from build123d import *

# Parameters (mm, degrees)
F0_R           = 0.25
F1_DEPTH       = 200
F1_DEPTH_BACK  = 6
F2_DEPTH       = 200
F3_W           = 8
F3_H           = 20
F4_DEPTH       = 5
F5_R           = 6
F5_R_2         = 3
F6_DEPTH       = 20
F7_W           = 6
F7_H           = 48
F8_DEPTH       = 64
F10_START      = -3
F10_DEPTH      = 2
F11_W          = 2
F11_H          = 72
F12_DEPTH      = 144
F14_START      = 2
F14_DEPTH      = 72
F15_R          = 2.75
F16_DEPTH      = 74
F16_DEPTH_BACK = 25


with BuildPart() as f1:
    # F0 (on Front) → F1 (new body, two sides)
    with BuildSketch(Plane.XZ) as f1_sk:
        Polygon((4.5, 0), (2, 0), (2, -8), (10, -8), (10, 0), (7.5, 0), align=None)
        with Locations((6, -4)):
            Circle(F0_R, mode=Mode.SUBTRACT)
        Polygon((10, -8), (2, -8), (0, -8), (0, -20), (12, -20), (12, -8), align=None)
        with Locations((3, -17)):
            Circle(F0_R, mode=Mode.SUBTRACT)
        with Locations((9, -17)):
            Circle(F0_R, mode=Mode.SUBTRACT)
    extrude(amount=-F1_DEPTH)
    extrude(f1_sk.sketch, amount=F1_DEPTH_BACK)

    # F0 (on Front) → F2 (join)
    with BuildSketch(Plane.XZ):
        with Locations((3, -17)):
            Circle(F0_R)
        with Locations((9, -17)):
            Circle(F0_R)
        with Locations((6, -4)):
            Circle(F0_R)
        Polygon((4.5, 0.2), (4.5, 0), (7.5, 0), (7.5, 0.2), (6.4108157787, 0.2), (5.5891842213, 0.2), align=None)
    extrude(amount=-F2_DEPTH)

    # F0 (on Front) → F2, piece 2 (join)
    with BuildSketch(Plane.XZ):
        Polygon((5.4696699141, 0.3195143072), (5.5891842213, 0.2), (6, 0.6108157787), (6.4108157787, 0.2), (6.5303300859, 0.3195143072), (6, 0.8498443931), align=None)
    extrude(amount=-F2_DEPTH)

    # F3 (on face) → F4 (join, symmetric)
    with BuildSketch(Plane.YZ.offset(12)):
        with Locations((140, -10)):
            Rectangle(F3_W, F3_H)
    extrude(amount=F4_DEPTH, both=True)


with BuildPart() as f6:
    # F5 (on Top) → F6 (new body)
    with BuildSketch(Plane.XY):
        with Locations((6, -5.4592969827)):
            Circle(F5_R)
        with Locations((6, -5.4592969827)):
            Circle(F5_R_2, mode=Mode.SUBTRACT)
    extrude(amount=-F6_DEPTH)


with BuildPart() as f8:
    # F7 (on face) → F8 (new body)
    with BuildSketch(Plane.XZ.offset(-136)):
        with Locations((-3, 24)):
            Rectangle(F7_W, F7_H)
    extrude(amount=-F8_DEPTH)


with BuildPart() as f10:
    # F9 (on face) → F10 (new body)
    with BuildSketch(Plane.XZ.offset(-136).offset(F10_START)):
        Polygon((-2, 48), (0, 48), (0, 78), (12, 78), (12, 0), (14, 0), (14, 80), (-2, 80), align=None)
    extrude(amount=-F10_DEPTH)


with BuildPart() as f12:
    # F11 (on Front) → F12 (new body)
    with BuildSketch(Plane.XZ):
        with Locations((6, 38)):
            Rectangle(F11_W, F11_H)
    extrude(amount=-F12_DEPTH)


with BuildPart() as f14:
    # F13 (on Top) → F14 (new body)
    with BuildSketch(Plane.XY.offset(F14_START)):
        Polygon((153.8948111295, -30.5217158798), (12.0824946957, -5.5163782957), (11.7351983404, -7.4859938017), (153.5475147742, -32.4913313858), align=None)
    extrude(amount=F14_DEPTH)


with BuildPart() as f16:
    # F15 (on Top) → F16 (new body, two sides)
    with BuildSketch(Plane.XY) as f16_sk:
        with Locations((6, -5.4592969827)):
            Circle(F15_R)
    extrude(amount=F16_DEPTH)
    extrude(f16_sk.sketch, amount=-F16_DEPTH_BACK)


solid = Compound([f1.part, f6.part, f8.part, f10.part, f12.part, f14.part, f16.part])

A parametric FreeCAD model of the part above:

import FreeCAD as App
import Part
import Sketcher

V = App.Vector
Q = App.Units.Quantity

doc = App.newDocument("Part")
body = doc.addObject("PartDesign::Body", "Body")
body.AllowCompound = True

sketch1 = doc.addObject("Sketcher::SketchObject", "Sketch")
body.addObject(sketch1)
sketch1.AttachmentSupport = (doc.XZ_Plane, [""])
sketch1.MapMode = "FlatFace"
sketch1.addGeometry(Part.LineSegment(V(2, 0, 0), V(2, -8, 0)), False)
sketch1.addGeometry(Part.LineSegment(V(2, -8, 0), V(0, -8, 0)), False)
sketch1.addGeometry(Part.LineSegment(V(0, -8, 0), V(0, -20, 0)), False)
sketch1.addGeometry(Part.LineSegment(V(0, -20, 0), V(12, -20, 0)), False)
sketch1.addGeometry(Part.LineSegment(V(12, -20, 0), V(12, -8, 0)), False)
sketch1.addGeometry(Part.LineSegment(V(12, -8, 0), V(10, -8, 0)), False)
sketch1.addGeometry(Part.LineSegment(V(10, -8, 0), V(10, 0, 0)), False)
sketch1.addGeometry(Part.LineSegment(V(10, 0, 0), V(2, 0, 0)), False)
sketch1.addGeometry(Part.Circle(V(3, -17, 0), V(0, 0, 1), 0.25), False)
sketch1.addGeometry(Part.Circle(V(9, -17, 0), V(0, 0, 1), 0.25), False)
sketch1.addGeometry(Part.Circle(V(6, -4, 0), V(0, 0, 1), 0.25), False)
sketch1.addConstraint(Sketcher.Constraint("Coincident", 0, 2, 1, 1))
sketch1.addConstraint(Sketcher.Constraint("Coincident", 1, 2, 2, 1))
sketch1.addConstraint(Sketcher.Constraint("Coincident", 2, 2, 3, 1))
sketch1.addConstraint(Sketcher.Constraint("Coincident", 3, 2, 4, 1))
sketch1.addConstraint(Sketcher.Constraint("Coincident", 4, 2, 5, 1))
sketch1.addConstraint(Sketcher.Constraint("Coincident", 5, 2, 6, 1))
sketch1.addConstraint(Sketcher.Constraint("Coincident", 6, 2, 7, 1))
sketch1.addConstraint(Sketcher.Constraint("Coincident", 7, 2, 0, 1))
sketch1.addConstraint(Sketcher.Constraint("Vertical", 0))
sketch1.addConstraint(Sketcher.Constraint("Horizontal", 1))
sketch1.addConstraint(Sketcher.Constraint("Vertical", 2))
sketch1.addConstraint(Sketcher.Constraint("Horizontal", 3))
sketch1.addConstraint(Sketcher.Constraint("Vertical", 4))
sketch1.addConstraint(Sketcher.Constraint("Horizontal", 5))
sketch1.addConstraint(Sketcher.Constraint("Vertical", 6))
sketch1.addConstraint(Sketcher.Constraint("Horizontal", 7))
sketch1.addConstraint(Sketcher.Constraint("Equal", 8, 9))
sketch1.addConstraint(Sketcher.Constraint("Equal", 9, 10))
sketch1.addConstraint(Sketcher.Constraint("PointOnObject", 1, 2, -2))
sketch1.addConstraint(Sketcher.Constraint("PointOnObject", 6, 2, -1))
sketch1.addConstraint(Sketcher.Constraint("Horizontal", 8, 3, 9, 3))
sketch1.addConstraint(Sketcher.Constraint("Horizontal", 1, 2, 4, 2))
sketch1.addConstraint(Sketcher.Constraint("Equal", 1, 5))
sketch1.addConstraint(Sketcher.Constraint("Equal", 7, 0))
sketch1.addConstraint(Sketcher.Constraint("Equal", 3, 2))
sketch1.addConstraint(Sketcher.Constraint("Diameter", 8, Q("0.5 mm")))
sketch1.addConstraint(Sketcher.Constraint("DistanceX", 1, 2, 1, 1, Q("2 mm")))
sketch1.addConstraint(Sketcher.Constraint("DistanceX", 3, 1, 3, 2, Q("12 mm")))
sketch1.addConstraint(Sketcher.Constraint("DistanceX", -1, 1, 8, 3, Q("3 mm")))
sketch1.addConstraint(Sketcher.Constraint("DistanceY", 8, 3, -1, 1, Q("17 mm")))
sketch1.addConstraint(Sketcher.Constraint("DistanceX", -1, 1, 9, 3, Q("9 mm")))
sketch1.addConstraint(Sketcher.Constraint("DistanceX", -1, 1, 10, 3, Q("6 mm")))
sketch1.addConstraint(Sketcher.Constraint("DistanceY", 10, 3, -1, 1, Q("4 mm")))
pad1 = doc.addObject("PartDesign::Pad", "Pad")
body.addObject(pad1)
pad1.Profile = sketch1
pad1.Type = "TwoLengths"
pad1.Length = 200
pad1.Length2 = 6
pad1.Reversed = True

sketch2 = doc.addObject("Sketcher::SketchObject", "Sketch001")
body.addObject(sketch2)
sketch2.AttachmentSupport = (doc.XZ_Plane, [""])
sketch2.MapMode = "FlatFace"
sketch2.addGeometry(Part.Circle(V(3, -17, 0), V(0, 0, 1), 0.25), False)
sketch2.addGeometry(Part.Circle(V(9, -17, 0), V(0, 0, 1), 0.25), False)
sketch2.addGeometry(Part.Circle(V(6, -4, 0), V(0, 0, 1), 0.25), False)
sketch2.addGeometry(Part.LineSegment(V(4.5, 0.2, 0), V(4.5, 0, 0)), False)
sketch2.addGeometry(Part.LineSegment(V(4.5, 0, 0), V(7.5, 0, 0)), False)
sketch2.addGeometry(Part.LineSegment(V(7.5, 0, 0), V(7.5, 0.2, 0)), False)
sketch2.addGeometry(Part.LineSegment(V(7.5, 0.2, 0), V(4.5, 0.2, 0)), False)
sketch2.addConstraint(Sketcher.Constraint("Coincident", 3, 2, 4, 1))
sketch2.addConstraint(Sketcher.Constraint("Coincident", 4, 2, 5, 1))
sketch2.addConstraint(Sketcher.Constraint("Coincident", 5, 2, 6, 1))
sketch2.addConstraint(Sketcher.Constraint("Coincident", 6, 2, 3, 1))
sketch2.addConstraint(Sketcher.Constraint("Vertical", 3))
sketch2.addConstraint(Sketcher.Constraint("Horizontal", 4))
sketch2.addConstraint(Sketcher.Constraint("Vertical", 5))
sketch2.addConstraint(Sketcher.Constraint("Horizontal", 6))
sketch2.addConstraint(Sketcher.Constraint("Equal", 0, 1))
sketch2.addConstraint(Sketcher.Constraint("Equal", 1, 2))
sketch2.addConstraint(Sketcher.Constraint("PointOnObject", 3, 2, -1))
sketch2.addConstraint(Sketcher.Constraint("Horizontal", 0, 3, 1, 3))
sketch2.addConstraint(Sketcher.Constraint("Diameter", 0, Q("0.5 mm")))
sketch2.addConstraint(Sketcher.Constraint("DistanceX", 4, 1, 4, 2, Q("3 mm")))
sketch2.addConstraint(Sketcher.Constraint("DistanceY", 3, 2, 3, 1, Q("0.2 mm")))
sketch2.addConstraint(Sketcher.Constraint("DistanceX", -1, 1, 0, 3, Q("3 mm")))
sketch2.addConstraint(Sketcher.Constraint("DistanceY", 0, 3, -1, 1, Q("17 mm")))
sketch2.addConstraint(Sketcher.Constraint("DistanceX", -1, 1, 1, 3, Q("9 mm")))
sketch2.addConstraint(Sketcher.Constraint("DistanceX", -1, 1, 2, 3, Q("6 mm")))
sketch2.addConstraint(Sketcher.Constraint("DistanceY", 2, 3, -1, 1, Q("4 mm")))
sketch2.addConstraint(Sketcher.Constraint("DistanceX", -1, 1, 3, 2, Q("4.5 mm")))
pad2 = doc.addObject("PartDesign::Pad", "Pad001")
body.addObject(pad2)
pad2.Profile = sketch2
pad2.Length = 200
pad2.Reversed = True

sketch3 = doc.addObject("Sketcher::SketchObject", "Sketch002")
body.addObject(sketch3)
sketch3.AttachmentSupport = (doc.XZ_Plane, [""])
sketch3.MapMode = "FlatFace"
sketch3.addGeometry(Part.LineSegment(V(5.47, 0.32, 0), V(5.59, 0.2, 0)), False)
sketch3.addGeometry(Part.LineSegment(V(5.59, 0.2, 0), V(6, 0.61, 0)), False)
sketch3.addGeometry(Part.LineSegment(V(6, 0.61, 0), V(6.41, 0.2, 0)), False)
sketch3.addGeometry(Part.LineSegment(V(6.41, 0.2, 0), V(6.53, 0.32, 0)), False)
sketch3.addGeometry(Part.LineSegment(V(6.53, 0.32, 0), V(6, 0.85, 0)), False)
sketch3.addGeometry(Part.LineSegment(V(6, 0.85, 0), V(5.47, 0.32, 0)), False)
sketch3.addConstraint(Sketcher.Constraint("Coincident", 0, 2, 1, 1))
sketch3.addConstraint(Sketcher.Constraint("Coincident", 1, 2, 2, 1))
sketch3.addConstraint(Sketcher.Constraint("Coincident", 2, 2, 3, 1))
sketch3.addConstraint(Sketcher.Constraint("Coincident", 3, 2, 4, 1))
sketch3.addConstraint(Sketcher.Constraint("Coincident", 4, 2, 5, 1))
sketch3.addConstraint(Sketcher.Constraint("Coincident", 5, 2, 0, 1))
sketch3.addConstraint(Sketcher.Constraint("Perpendicular", 0, 1))
sketch3.addConstraint(Sketcher.Constraint("Perpendicular", 1, 2))
sketch3.addConstraint(Sketcher.Constraint("Perpendicular", 2, 3))
sketch3.addConstraint(Sketcher.Constraint("Perpendicular", 3, 4))
sketch3.addConstraint(Sketcher.Constraint("Perpendicular", 4, 5))
sketch3.addConstraint(Sketcher.Constraint("Horizontal", 0, 2, 2, 2))
sketch3.addConstraint(Sketcher.Constraint("Horizontal", 3, 2, 5, 2))
sketch3.addConstraint(Sketcher.Constraint("Vertical", 1, 2, 4, 2))
sketch3.addConstraint(Sketcher.Constraint("DistanceX", -1, 1, 1, 2, Q("6 mm")))
sketch3.addConstraint(Sketcher.Constraint("DistanceY", -1, 1, 0, 2, Q("0.2 mm")))
sketch3.addConstraint(Sketcher.Constraint("Distance", 4, Q("0.75 mm")))
sketch3.addConstraint(Sketcher.Constraint("DistanceY", 3, 2, 1, 2, Q("0.291301 mm")))
pad3 = doc.addObject("PartDesign::Pad", "Pad002")
body.addObject(pad3)
pad3.Profile = sketch3
pad3.Length = 200
pad3.Reversed = True

sketch4 = doc.addObject("Sketcher::SketchObject", "Sketch003")
body.addObject(sketch4)
sketch4.AttachmentSupport = (doc.YZ_Plane, [""])
sketch4.MapMode = "FlatFace"
sketch4.AttachmentOffset = App.Placement(V(0, 0, 12), App.Rotation())
sketch4.addGeometry(Part.LineSegment(V(136, 0, 0), V(136, -20, 0)), False)
sketch4.addGeometry(Part.LineSegment(V(136, -20, 0), V(144, -20, 0)), False)
sketch4.addGeometry(Part.LineSegment(V(144, -20, 0), V(144, 0, 0)), False)
sketch4.addGeometry(Part.LineSegment(V(144, 0, 0), V(136, 0, 0)), False)
sketch4.addConstraint(Sketcher.Constraint("Coincident", 0, 2, 1, 1))
sketch4.addConstraint(Sketcher.Constraint("Coincident", 1, 2, 2, 1))
sketch4.addConstraint(Sketcher.Constraint("Coincident", 2, 2, 3, 1))
sketch4.addConstraint(Sketcher.Constraint("Coincident", 3, 2, 0, 1))
sketch4.addConstraint(Sketcher.Constraint("Vertical", 0))
sketch4.addConstraint(Sketcher.Constraint("Horizontal", 1))
sketch4.addConstraint(Sketcher.Constraint("Vertical", 2))
sketch4.addConstraint(Sketcher.Constraint("Horizontal", 3))
sketch4.addConstraint(Sketcher.Constraint("PointOnObject", 2, 2, -1))
sketch4.addConstraint(Sketcher.Constraint("DistanceX", 1, 1, 1, 2, Q("8 mm")))
sketch4.addConstraint(Sketcher.Constraint("DistanceY", 0, 2, 0, 1, Q("20 mm")))
sketch4.addConstraint(Sketcher.Constraint("DistanceX", -1, 1, 0, 2, Q("136 mm")))
pad4 = doc.addObject("PartDesign::Pad", "Pad003")
body.addObject(pad4)
pad4.Profile = sketch4
pad4.Length = 10
pad4.Midplane = True
body2 = doc.addObject("PartDesign::Body", "Body001")

sketch5 = doc.addObject("Sketcher::SketchObject", "Sketch004")
body2.addObject(sketch5)
sketch5.AttachmentSupport = (doc.getObject("XY_Plane001"), [""])
sketch5.MapMode = "FlatFace"
sketch5.addGeometry(Part.Circle(V(6, -5.5, 0), V(0, 0, 1), 6), False)
sketch5.addGeometry(Part.Circle(V(6, -5.5, 0), V(0, 0, 1), 3), False)
sketch5.addConstraint(Sketcher.Constraint("Coincident", 1, 3, 0, 3))
sketch5.addConstraint(Sketcher.Constraint("Diameter", 0, Q("12 mm")))
sketch5.addConstraint(Sketcher.Constraint("Diameter", 1, Q("6 mm")))
sketch5.addConstraint(Sketcher.Constraint("DistanceX", -1, 1, 0, 3, Q("6 mm")))
sketch5.addConstraint(Sketcher.Constraint("DistanceY", 0, 3, -1, 1, Q("5.459297 mm")))
pad5 = doc.addObject("PartDesign::Pad", "Pad004")
body2.addObject(pad5)
pad5.Profile = sketch5
pad5.Length = 20
pad5.Reversed = True
body3 = doc.addObject("PartDesign::Body", "Body002")

sketch6 = doc.addObject("Sketcher::SketchObject", "Sketch005")
body3.addObject(sketch6)
sketch6.AttachmentSupport = (doc.getObject("XZ_Plane002"), [""])
sketch6.MapMode = "FlatFace"
sketch6.AttachmentOffset = App.Placement(V(0, 0, -136), App.Rotation())
sketch6.addGeometry(Part.LineSegment(V(-6, 48, 0), V(-6, 0, 0)), False)
sketch6.addGeometry(Part.LineSegment(V(-6, 0, 0), V(0, 0, 0)), False)
sketch6.addGeometry(Part.LineSegment(V(0, 0, 0), V(0, 48, 0)), False)
sketch6.addGeometry(Part.LineSegment(V(0, 48, 0), V(-6, 48, 0)), False)
sketch6.addConstraint(Sketcher.Constraint("Coincident", 0, 2, 1, 1))
sketch6.addConstraint(Sketcher.Constraint("Coincident", 1, 2, 2, 1))
sketch6.addConstraint(Sketcher.Constraint("Coincident", 2, 2, 3, 1))
sketch6.addConstraint(Sketcher.Constraint("Coincident", 3, 2, 0, 1))
sketch6.addConstraint(Sketcher.Constraint("Vertical", 0))
sketch6.addConstraint(Sketcher.Constraint("Horizontal", 1))
sketch6.addConstraint(Sketcher.Constraint("Vertical", 2))
sketch6.addConstraint(Sketcher.Constraint("Horizontal", 3))
sketch6.addConstraint(Sketcher.Constraint("Coincident", 1, 2, -1, 1))
sketch6.addConstraint(Sketcher.Constraint("DistanceX", 1, 1, 1, 2, Q("6 mm")))
sketch6.addConstraint(Sketcher.Constraint("DistanceY", 0, 2, 0, 1, Q("48 mm")))
pad6 = doc.addObject("PartDesign::Pad", "Pad005")
body3.addObject(pad6)
pad6.Profile = sketch6
pad6.Length = 64
pad6.Reversed = True
body4 = doc.addObject("PartDesign::Body", "Body003")

sketch7 = doc.addObject("Sketcher::SketchObject", "Sketch006")
body4.addObject(sketch7)
sketch7.AttachmentSupport = (doc.getObject("XZ_Plane003"), [""])
sketch7.MapMode = "FlatFace"
sketch7.AttachmentOffset = App.Placement(V(0, 0, -139), App.Rotation())
sketch7.addGeometry(Part.LineSegment(V(-2, 48, 0), V(0, 48, 0)), False)
sketch7.addGeometry(Part.LineSegment(V(0, 48, 0), V(0, 78, 0)), False)
sketch7.addGeometry(Part.LineSegment(V(0, 78, 0), V(12, 78, 0)), False)
sketch7.addGeometry(Part.LineSegment(V(12, 78, 0), V(12, 0, 0)), False)
sketch7.addGeometry(Part.LineSegment(V(12, 0, 0), V(14, 0, 0)), False)
sketch7.addGeometry(Part.LineSegment(V(14, 0, 0), V(14, 80, 0)), False)
sketch7.addGeometry(Part.LineSegment(V(14, 80, 0), V(-2, 80, 0)), False)
sketch7.addGeometry(Part.LineSegment(V(-2, 80, 0), V(-2, 48, 0)), False)
sketch7.addConstraint(Sketcher.Constraint("Coincident", 0, 2, 1, 1))
sketch7.addConstraint(Sketcher.Constraint("Coincident", 1, 2, 2, 1))
sketch7.addConstraint(Sketcher.Constraint("Coincident", 2, 2, 3, 1))
sketch7.addConstraint(Sketcher.Constraint("Coincident", 3, 2, 4, 1))
sketch7.addConstraint(Sketcher.Constraint("Coincident", 4, 2, 5, 1))
sketch7.addConstraint(Sketcher.Constraint("Coincident", 5, 2, 6, 1))
sketch7.addConstraint(Sketcher.Constraint("Coincident", 6, 2, 7, 1))
sketch7.addConstraint(Sketcher.Constraint("Coincident", 7, 2, 0, 1))
sketch7.addConstraint(Sketcher.Constraint("Horizontal", 0))
sketch7.addConstraint(Sketcher.Constraint("Vertical", 1))
sketch7.addConstraint(Sketcher.Constraint("Horizontal", 2))
sketch7.addConstraint(Sketcher.Constraint("Vertical", 3))
sketch7.addConstraint(Sketcher.Constraint("Horizontal", 4))
sketch7.addConstraint(Sketcher.Constraint("Vertical", 5))
sketch7.addConstraint(Sketcher.Constraint("Horizontal", 6))
sketch7.addConstraint(Sketcher.Constraint("Vertical", 7))
sketch7.addConstraint(Sketcher.Constraint("PointOnObject", 0, 2, -2))
sketch7.addConstraint(Sketcher.Constraint("PointOnObject", 3, 2, -1))
sketch7.addConstraint(Sketcher.Constraint("Equal", 0, 4))
sketch7.addConstraint(Sketcher.Constraint("DistanceX", 0, 1, 0, 2, Q("2 mm")))
sketch7.addConstraint(Sketcher.Constraint("DistanceX", 2, 1, 2, 2, Q("12 mm")))
sketch7.addConstraint(Sketcher.Constraint("DistanceY", 1, 1, 1, 2, Q("30 mm")))
sketch7.addConstraint(Sketcher.Constraint("DistanceY", 3, 2, 3, 1, Q("78 mm")))
sketch7.addConstraint(Sketcher.Constraint("DistanceY", 5, 1, 5, 2, Q("80 mm")))
pad7 = doc.addObject("PartDesign::Pad", "Pad006")
body4.addObject(pad7)
pad7.Profile = sketch7
pad7.Length = 2
pad7.Reversed = True
body5 = doc.addObject("PartDesign::Body", "Body004")

sketch8 = doc.addObject("Sketcher::SketchObject", "Sketch007")
body5.addObject(sketch8)
sketch8.AttachmentSupport = (doc.getObject("XZ_Plane004"), [""])
sketch8.MapMode = "FlatFace"
sketch8.addGeometry(Part.LineSegment(V(5, 74, 0), V(5, 2, 0)), False)
sketch8.addGeometry(Part.LineSegment(V(5, 2, 0), V(7, 2, 0)), False)
sketch8.addGeometry(Part.LineSegment(V(7, 2, 0), V(7, 74, 0)), False)
sketch8.addGeometry(Part.LineSegment(V(7, 74, 0), V(5, 74, 0)), False)
sketch8.addConstraint(Sketcher.Constraint("Coincident", 0, 2, 1, 1))
sketch8.addConstraint(Sketcher.Constraint("Coincident", 1, 2, 2, 1))
sketch8.addConstraint(Sketcher.Constraint("Coincident", 2, 2, 3, 1))
sketch8.addConstraint(Sketcher.Constraint("Coincident", 3, 2, 0, 1))
sketch8.addConstraint(Sketcher.Constraint("Vertical", 0))
sketch8.addConstraint(Sketcher.Constraint("Horizontal", 1))
sketch8.addConstraint(Sketcher.Constraint("Vertical", 2))
sketch8.addConstraint(Sketcher.Constraint("Horizontal", 3))
sketch8.addConstraint(Sketcher.Constraint("DistanceX", 1, 1, 1, 2, Q("2 mm")))
sketch8.addConstraint(Sketcher.Constraint("DistanceY", 0, 2, 0, 1, Q("72 mm")))
sketch8.addConstraint(Sketcher.Constraint("DistanceX", -1, 1, 0, 2, Q("5 mm")))
sketch8.addConstraint(Sketcher.Constraint("DistanceY", -1, 1, 0, 2, Q("2 mm")))
pad8 = doc.addObject("PartDesign::Pad", "Pad007")
body5.addObject(pad8)
pad8.Profile = sketch8
pad8.Length = 144
pad8.Reversed = True
body6 = doc.addObject("PartDesign::Body", "Body005")

sketch9 = doc.addObject("Sketcher::SketchObject", "Sketch008")
body6.addObject(sketch9)
sketch9.AttachmentSupport = (doc.getObject("XY_Plane005"), [""])
sketch9.MapMode = "FlatFace"
sketch9.AttachmentOffset = App.Placement(V(0, 0, 2), App.Rotation())
sketch9.addGeometry(Part.LineSegment(V(153.9, -30.5, 0), V(12.1, -5.5, 0)), False)
sketch9.addGeometry(Part.LineSegment(V(12.1, -5.5, 0), V(11.7, -7.5, 0)), False)
sketch9.addGeometry(Part.LineSegment(V(11.7, -7.5, 0), V(153.5, -32.5, 0)), False)
sketch9.addGeometry(Part.LineSegment(V(153.5, -32.5, 0), V(153.9, -30.5, 0)), False)
sketch9.addConstraint(Sketcher.Constraint("Coincident", 0, 2, 1, 1))
sketch9.addConstraint(Sketcher.Constraint("Coincident", 1, 2, 2, 1))
sketch9.addConstraint(Sketcher.Constraint("Coincident", 2, 2, 3, 1))
sketch9.addConstraint(Sketcher.Constraint("Coincident", 3, 2, 0, 1))
sketch9.addConstraint(Sketcher.Constraint("Perpendicular", 0, 1))
sketch9.addConstraint(Sketcher.Constraint("Perpendicular", 1, 2))
sketch9.addConstraint(Sketcher.Constraint("Perpendicular", 2, 3))
sketch9.addConstraint(Sketcher.Constraint("Angle", 0, Q("170 deg")))
sketch9.addConstraint(Sketcher.Constraint("Distance", 0, Q("144 mm")))
sketch9.addConstraint(Sketcher.Constraint("Distance", 1, Q("2 mm")))
sketch9.addConstraint(Sketcher.Constraint("DistanceX", -1, 1, 1, 2, Q("11.735198 mm")))
sketch9.addConstraint(Sketcher.Constraint("DistanceY", 0, 2, -1, 1, Q("5.516378 mm")))
pad9 = doc.addObject("PartDesign::Pad", "Pad008")
body6.addObject(pad9)
pad9.Profile = sketch9
pad9.Length = 72
body7 = doc.addObject("PartDesign::Body", "Body006")

sketch10 = doc.addObject("Sketcher::SketchObject", "Sketch009")
body7.addObject(sketch10)
sketch10.AttachmentSupport = (doc.getObject("XY_Plane006"), [""])
sketch10.MapMode = "FlatFace"
sketch10.addGeometry(Part.Circle(V(6, -5.5, 0), V(0, 0, 1), 2.8), False)
sketch10.addConstraint(Sketcher.Constraint("Diameter", 0, Q("5.5 mm")))
sketch10.addConstraint(Sketcher.Constraint("DistanceX", -1, 1, 0, 3, Q("6 mm")))
sketch10.addConstraint(Sketcher.Constraint("DistanceY", 0, 3, -1, 1, Q("5.459297 mm")))
pad10 = doc.addObject("PartDesign::Pad", "Pad009")
body7.addObject(pad10)
pad10.Profile = sketch10
pad10.Type = "TwoLengths"
pad10.Length = 74
pad10.Length2 = 25

doc.recompute()
